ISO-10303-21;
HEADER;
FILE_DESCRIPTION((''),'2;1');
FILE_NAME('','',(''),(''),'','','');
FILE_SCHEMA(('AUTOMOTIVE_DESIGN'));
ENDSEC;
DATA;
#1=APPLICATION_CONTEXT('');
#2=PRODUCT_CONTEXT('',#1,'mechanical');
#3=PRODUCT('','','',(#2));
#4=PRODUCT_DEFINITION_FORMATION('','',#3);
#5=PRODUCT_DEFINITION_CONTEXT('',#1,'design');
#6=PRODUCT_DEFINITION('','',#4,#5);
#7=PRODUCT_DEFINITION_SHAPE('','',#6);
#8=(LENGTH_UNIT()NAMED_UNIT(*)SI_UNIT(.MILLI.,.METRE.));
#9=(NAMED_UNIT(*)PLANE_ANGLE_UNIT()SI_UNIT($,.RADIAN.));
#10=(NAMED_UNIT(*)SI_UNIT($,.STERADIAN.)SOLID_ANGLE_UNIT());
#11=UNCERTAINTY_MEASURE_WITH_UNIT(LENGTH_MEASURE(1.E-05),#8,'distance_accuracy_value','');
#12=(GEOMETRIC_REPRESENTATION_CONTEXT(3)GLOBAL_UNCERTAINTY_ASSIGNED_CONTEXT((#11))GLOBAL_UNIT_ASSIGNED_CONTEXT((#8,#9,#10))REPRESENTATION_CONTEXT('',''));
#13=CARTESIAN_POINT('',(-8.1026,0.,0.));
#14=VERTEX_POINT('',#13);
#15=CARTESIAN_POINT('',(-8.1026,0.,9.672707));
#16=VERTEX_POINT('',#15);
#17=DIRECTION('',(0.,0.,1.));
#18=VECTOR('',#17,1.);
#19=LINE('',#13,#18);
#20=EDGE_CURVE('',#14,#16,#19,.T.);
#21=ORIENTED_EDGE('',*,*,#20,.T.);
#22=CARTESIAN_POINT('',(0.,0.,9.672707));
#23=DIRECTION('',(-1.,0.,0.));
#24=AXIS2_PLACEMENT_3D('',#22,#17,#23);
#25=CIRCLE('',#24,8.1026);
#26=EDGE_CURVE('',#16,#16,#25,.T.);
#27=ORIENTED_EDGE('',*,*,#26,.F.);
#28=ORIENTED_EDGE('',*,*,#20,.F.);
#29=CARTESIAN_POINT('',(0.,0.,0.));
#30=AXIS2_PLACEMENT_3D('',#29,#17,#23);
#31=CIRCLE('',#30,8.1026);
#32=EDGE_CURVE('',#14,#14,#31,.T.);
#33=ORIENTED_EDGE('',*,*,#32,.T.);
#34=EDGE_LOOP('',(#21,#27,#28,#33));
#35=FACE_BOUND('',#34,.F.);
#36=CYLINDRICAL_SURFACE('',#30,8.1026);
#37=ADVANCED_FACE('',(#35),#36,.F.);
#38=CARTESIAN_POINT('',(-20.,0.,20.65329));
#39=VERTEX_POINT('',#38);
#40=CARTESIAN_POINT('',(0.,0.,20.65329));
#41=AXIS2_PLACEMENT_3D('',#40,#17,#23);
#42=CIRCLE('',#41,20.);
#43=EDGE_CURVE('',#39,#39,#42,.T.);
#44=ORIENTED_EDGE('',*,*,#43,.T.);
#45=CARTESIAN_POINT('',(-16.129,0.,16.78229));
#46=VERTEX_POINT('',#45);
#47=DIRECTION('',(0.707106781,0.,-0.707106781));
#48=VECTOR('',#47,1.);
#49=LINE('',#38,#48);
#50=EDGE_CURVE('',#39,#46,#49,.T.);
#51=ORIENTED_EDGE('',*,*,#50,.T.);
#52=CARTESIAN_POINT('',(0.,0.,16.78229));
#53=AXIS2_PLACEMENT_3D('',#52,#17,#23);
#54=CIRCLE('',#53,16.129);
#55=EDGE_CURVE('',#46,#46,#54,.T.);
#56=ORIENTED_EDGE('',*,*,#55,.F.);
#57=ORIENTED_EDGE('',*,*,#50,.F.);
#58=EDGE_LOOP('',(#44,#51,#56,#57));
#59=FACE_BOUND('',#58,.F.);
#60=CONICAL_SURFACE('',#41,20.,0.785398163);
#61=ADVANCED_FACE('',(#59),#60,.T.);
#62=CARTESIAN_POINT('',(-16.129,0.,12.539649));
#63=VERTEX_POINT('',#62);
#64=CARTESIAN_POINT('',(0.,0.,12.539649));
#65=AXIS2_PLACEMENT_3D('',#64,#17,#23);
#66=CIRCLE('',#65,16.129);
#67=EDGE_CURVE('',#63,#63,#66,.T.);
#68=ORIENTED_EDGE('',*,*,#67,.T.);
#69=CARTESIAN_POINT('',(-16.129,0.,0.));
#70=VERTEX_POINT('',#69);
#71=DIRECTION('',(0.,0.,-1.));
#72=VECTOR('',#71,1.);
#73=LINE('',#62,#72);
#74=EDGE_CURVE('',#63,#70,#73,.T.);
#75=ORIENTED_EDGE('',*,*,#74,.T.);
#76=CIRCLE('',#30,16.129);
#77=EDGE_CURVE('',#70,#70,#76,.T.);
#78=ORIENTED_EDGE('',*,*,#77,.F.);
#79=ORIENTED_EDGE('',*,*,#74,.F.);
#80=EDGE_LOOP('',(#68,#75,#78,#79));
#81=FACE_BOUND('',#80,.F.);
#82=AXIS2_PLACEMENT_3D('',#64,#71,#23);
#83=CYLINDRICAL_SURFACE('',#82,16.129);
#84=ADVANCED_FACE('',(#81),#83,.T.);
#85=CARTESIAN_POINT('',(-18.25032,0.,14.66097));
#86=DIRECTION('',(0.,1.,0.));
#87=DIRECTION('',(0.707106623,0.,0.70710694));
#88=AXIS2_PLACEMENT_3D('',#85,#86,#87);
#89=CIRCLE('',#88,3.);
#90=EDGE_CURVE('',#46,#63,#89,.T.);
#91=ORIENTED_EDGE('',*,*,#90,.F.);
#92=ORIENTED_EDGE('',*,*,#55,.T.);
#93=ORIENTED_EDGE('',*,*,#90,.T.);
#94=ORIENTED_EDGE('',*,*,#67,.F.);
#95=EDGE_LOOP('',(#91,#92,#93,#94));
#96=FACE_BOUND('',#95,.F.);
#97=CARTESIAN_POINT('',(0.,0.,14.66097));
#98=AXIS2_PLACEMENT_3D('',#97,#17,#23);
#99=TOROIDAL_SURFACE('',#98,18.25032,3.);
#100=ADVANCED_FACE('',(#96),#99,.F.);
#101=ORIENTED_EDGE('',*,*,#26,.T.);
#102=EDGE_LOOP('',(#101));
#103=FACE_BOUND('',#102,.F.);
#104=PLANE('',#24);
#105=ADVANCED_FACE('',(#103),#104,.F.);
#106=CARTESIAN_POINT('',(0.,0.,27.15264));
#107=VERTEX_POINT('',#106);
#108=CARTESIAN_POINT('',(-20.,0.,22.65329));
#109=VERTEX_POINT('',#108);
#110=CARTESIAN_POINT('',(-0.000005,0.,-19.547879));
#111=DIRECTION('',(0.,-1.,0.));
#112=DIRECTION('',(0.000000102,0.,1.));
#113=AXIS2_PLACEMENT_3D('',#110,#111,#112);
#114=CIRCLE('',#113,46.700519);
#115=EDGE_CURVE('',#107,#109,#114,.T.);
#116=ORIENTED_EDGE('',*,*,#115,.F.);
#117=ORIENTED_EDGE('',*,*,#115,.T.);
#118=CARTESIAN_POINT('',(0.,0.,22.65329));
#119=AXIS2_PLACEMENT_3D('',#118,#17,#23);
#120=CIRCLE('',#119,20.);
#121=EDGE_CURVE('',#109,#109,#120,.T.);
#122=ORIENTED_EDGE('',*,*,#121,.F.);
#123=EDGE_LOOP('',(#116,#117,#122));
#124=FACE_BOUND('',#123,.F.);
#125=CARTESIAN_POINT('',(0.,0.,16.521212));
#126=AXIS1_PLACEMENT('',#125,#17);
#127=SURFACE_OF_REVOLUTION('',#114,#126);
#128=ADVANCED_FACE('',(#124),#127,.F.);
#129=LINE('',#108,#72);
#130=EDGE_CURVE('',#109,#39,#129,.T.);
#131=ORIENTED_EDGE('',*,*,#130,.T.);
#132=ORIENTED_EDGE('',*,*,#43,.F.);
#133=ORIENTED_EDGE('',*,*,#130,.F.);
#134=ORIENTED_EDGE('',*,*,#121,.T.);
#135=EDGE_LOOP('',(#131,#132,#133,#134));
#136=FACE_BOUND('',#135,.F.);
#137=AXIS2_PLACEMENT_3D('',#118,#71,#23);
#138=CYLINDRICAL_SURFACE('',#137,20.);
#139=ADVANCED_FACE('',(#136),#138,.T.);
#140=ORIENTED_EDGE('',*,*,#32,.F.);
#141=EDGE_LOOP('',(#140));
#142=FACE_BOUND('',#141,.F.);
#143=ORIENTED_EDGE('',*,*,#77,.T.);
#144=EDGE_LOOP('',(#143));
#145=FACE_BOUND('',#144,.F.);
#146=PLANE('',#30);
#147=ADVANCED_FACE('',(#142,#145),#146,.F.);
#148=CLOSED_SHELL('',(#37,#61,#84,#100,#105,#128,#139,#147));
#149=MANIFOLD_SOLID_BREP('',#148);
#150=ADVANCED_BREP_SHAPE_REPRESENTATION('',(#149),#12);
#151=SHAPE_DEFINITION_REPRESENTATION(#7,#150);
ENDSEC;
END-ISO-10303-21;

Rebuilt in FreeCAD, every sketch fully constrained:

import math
import FreeCAD as App
import Part
import Sketcher

V = App.Vector
Q = App.Units.Quantity

doc = App.newDocument("Part")
body = doc.addObject("PartDesign::Body", "Body")

sketch1 = doc.addObject("Sketcher::SketchObject", "Sketch")
body.addObject(sketch1)
sketch1.AttachmentSupport = (doc.XZ_Plane, [""])
sketch1.MapMode = "FlatFace"
sketch1.addGeometry([
    Part.LineSegment(V(-8.1, 9.7, 0), V(0, 9.7, 0)),
    Part.LineSegment(V(0, 9.7, 0), V(0, 27.2, 0)),
    Part.ArcOfCircle(Part.Circle(V(0, -19.5, 0), V(0, 0, 1), 46.7), math.radians(90), math.radians(115)),
    Part.LineSegment(V(-20, 22.7, 0), V(-20, 20.7, 0)),
    Part.LineSegment(V(-20, 20.7, 0), V(-16.1, 16.8, 0)),
    Part.ArcOfCircle(Part.Circle(V(-18.3, 14.7, 0), V(0, 0, 1), 3), math.radians(-45), math.radians(45)),
    Part.LineSegment(V(-16.1, 12.5, 0), V(-16.1, 0, 0)),
    Part.LineSegment(V(-16.1, 0, 0), V(-8.1, 0, 0)),
    Part.LineSegment(V(-8.1, 0, 0), V(-8.1, 9.7, 0)),
], False)
sketch1.addConstraint([
    Sketcher.Constraint("Coincident", 0, 2, 1, 1),
    Sketcher.Constraint("Coincident", 1, 2, 2, 1),
    Sketcher.Constraint("Coincident", 2, 2, 3, 1),
    Sketcher.Constraint("Coincident", 3, 2, 4, 1),
    Sketcher.Constraint("Tangent", 4, 2, 5, 2),
    Sketcher.Constraint("Coincident", 5, 1, 6, 1),
    Sketcher.Constraint("Coincident", 6, 2, 7, 1),
    Sketcher.Constraint("Coincident", 7, 2, 8, 1),
    Sketcher.Constraint("Coincident", 8, 2, 0, 1),
    Sketcher.Constraint("Horizontal", 0),
    Sketcher.Constraint("Vertical", 1),
    Sketcher.Constraint("Vertical", 3),
    Sketcher.Constraint("Vertical", 6),
    Sketcher.Constraint("Horizontal", 7),
    Sketcher.Constraint("Vertical", 8),
    Sketcher.Constraint("PointOnObject", 0, 2, -2),
    Sketcher.Constraint("PointOnObject", 6, 2, -1),
    Sketcher.Constraint("Vertical", 4, 2, 5, 1),
    Sketcher.Constraint("Radius", 5, Q("3 mm")),
    Sketcher.Constraint("DistanceY", 3, 2, 3, 1, Q("2 mm")),
    Sketcher.Constraint("Angle", 4, Q("-45 deg")),
    Sketcher.Constraint("DistanceX", 2, 2, -1, 1, Q("20 mm")),
    Sketcher.Constraint("Radius", 2, Q("46.700519 mm")),
    Sketcher.Constraint("DistanceX", 0, 1, 0, 2, Q("8.1026 mm")),
    Sketcher.Constraint("DistanceX", 7, 1, 7, 2, Q("8.0264 mm")),
    Sketcher.Constraint("DistanceY", 6, 2, 6, 1, Q("12.539649 mm")),
    Sketcher.Constraint("DistanceY", 1, 1, 1, 2, Q("17.479933 mm")),
    Sketcher.Constraint("DistanceY", 8, 1, 8, 2, Q("9.672707 mm")),
])
revolution = doc.addObject("PartDesign::Revolution", "Revolution")
body.addObject(revolution)
revolution.Profile = sketch1
revolution.ReferenceAxis = (sketch1, ["V_Axis"])
revolution.Angle = 360

doc.recompute()
